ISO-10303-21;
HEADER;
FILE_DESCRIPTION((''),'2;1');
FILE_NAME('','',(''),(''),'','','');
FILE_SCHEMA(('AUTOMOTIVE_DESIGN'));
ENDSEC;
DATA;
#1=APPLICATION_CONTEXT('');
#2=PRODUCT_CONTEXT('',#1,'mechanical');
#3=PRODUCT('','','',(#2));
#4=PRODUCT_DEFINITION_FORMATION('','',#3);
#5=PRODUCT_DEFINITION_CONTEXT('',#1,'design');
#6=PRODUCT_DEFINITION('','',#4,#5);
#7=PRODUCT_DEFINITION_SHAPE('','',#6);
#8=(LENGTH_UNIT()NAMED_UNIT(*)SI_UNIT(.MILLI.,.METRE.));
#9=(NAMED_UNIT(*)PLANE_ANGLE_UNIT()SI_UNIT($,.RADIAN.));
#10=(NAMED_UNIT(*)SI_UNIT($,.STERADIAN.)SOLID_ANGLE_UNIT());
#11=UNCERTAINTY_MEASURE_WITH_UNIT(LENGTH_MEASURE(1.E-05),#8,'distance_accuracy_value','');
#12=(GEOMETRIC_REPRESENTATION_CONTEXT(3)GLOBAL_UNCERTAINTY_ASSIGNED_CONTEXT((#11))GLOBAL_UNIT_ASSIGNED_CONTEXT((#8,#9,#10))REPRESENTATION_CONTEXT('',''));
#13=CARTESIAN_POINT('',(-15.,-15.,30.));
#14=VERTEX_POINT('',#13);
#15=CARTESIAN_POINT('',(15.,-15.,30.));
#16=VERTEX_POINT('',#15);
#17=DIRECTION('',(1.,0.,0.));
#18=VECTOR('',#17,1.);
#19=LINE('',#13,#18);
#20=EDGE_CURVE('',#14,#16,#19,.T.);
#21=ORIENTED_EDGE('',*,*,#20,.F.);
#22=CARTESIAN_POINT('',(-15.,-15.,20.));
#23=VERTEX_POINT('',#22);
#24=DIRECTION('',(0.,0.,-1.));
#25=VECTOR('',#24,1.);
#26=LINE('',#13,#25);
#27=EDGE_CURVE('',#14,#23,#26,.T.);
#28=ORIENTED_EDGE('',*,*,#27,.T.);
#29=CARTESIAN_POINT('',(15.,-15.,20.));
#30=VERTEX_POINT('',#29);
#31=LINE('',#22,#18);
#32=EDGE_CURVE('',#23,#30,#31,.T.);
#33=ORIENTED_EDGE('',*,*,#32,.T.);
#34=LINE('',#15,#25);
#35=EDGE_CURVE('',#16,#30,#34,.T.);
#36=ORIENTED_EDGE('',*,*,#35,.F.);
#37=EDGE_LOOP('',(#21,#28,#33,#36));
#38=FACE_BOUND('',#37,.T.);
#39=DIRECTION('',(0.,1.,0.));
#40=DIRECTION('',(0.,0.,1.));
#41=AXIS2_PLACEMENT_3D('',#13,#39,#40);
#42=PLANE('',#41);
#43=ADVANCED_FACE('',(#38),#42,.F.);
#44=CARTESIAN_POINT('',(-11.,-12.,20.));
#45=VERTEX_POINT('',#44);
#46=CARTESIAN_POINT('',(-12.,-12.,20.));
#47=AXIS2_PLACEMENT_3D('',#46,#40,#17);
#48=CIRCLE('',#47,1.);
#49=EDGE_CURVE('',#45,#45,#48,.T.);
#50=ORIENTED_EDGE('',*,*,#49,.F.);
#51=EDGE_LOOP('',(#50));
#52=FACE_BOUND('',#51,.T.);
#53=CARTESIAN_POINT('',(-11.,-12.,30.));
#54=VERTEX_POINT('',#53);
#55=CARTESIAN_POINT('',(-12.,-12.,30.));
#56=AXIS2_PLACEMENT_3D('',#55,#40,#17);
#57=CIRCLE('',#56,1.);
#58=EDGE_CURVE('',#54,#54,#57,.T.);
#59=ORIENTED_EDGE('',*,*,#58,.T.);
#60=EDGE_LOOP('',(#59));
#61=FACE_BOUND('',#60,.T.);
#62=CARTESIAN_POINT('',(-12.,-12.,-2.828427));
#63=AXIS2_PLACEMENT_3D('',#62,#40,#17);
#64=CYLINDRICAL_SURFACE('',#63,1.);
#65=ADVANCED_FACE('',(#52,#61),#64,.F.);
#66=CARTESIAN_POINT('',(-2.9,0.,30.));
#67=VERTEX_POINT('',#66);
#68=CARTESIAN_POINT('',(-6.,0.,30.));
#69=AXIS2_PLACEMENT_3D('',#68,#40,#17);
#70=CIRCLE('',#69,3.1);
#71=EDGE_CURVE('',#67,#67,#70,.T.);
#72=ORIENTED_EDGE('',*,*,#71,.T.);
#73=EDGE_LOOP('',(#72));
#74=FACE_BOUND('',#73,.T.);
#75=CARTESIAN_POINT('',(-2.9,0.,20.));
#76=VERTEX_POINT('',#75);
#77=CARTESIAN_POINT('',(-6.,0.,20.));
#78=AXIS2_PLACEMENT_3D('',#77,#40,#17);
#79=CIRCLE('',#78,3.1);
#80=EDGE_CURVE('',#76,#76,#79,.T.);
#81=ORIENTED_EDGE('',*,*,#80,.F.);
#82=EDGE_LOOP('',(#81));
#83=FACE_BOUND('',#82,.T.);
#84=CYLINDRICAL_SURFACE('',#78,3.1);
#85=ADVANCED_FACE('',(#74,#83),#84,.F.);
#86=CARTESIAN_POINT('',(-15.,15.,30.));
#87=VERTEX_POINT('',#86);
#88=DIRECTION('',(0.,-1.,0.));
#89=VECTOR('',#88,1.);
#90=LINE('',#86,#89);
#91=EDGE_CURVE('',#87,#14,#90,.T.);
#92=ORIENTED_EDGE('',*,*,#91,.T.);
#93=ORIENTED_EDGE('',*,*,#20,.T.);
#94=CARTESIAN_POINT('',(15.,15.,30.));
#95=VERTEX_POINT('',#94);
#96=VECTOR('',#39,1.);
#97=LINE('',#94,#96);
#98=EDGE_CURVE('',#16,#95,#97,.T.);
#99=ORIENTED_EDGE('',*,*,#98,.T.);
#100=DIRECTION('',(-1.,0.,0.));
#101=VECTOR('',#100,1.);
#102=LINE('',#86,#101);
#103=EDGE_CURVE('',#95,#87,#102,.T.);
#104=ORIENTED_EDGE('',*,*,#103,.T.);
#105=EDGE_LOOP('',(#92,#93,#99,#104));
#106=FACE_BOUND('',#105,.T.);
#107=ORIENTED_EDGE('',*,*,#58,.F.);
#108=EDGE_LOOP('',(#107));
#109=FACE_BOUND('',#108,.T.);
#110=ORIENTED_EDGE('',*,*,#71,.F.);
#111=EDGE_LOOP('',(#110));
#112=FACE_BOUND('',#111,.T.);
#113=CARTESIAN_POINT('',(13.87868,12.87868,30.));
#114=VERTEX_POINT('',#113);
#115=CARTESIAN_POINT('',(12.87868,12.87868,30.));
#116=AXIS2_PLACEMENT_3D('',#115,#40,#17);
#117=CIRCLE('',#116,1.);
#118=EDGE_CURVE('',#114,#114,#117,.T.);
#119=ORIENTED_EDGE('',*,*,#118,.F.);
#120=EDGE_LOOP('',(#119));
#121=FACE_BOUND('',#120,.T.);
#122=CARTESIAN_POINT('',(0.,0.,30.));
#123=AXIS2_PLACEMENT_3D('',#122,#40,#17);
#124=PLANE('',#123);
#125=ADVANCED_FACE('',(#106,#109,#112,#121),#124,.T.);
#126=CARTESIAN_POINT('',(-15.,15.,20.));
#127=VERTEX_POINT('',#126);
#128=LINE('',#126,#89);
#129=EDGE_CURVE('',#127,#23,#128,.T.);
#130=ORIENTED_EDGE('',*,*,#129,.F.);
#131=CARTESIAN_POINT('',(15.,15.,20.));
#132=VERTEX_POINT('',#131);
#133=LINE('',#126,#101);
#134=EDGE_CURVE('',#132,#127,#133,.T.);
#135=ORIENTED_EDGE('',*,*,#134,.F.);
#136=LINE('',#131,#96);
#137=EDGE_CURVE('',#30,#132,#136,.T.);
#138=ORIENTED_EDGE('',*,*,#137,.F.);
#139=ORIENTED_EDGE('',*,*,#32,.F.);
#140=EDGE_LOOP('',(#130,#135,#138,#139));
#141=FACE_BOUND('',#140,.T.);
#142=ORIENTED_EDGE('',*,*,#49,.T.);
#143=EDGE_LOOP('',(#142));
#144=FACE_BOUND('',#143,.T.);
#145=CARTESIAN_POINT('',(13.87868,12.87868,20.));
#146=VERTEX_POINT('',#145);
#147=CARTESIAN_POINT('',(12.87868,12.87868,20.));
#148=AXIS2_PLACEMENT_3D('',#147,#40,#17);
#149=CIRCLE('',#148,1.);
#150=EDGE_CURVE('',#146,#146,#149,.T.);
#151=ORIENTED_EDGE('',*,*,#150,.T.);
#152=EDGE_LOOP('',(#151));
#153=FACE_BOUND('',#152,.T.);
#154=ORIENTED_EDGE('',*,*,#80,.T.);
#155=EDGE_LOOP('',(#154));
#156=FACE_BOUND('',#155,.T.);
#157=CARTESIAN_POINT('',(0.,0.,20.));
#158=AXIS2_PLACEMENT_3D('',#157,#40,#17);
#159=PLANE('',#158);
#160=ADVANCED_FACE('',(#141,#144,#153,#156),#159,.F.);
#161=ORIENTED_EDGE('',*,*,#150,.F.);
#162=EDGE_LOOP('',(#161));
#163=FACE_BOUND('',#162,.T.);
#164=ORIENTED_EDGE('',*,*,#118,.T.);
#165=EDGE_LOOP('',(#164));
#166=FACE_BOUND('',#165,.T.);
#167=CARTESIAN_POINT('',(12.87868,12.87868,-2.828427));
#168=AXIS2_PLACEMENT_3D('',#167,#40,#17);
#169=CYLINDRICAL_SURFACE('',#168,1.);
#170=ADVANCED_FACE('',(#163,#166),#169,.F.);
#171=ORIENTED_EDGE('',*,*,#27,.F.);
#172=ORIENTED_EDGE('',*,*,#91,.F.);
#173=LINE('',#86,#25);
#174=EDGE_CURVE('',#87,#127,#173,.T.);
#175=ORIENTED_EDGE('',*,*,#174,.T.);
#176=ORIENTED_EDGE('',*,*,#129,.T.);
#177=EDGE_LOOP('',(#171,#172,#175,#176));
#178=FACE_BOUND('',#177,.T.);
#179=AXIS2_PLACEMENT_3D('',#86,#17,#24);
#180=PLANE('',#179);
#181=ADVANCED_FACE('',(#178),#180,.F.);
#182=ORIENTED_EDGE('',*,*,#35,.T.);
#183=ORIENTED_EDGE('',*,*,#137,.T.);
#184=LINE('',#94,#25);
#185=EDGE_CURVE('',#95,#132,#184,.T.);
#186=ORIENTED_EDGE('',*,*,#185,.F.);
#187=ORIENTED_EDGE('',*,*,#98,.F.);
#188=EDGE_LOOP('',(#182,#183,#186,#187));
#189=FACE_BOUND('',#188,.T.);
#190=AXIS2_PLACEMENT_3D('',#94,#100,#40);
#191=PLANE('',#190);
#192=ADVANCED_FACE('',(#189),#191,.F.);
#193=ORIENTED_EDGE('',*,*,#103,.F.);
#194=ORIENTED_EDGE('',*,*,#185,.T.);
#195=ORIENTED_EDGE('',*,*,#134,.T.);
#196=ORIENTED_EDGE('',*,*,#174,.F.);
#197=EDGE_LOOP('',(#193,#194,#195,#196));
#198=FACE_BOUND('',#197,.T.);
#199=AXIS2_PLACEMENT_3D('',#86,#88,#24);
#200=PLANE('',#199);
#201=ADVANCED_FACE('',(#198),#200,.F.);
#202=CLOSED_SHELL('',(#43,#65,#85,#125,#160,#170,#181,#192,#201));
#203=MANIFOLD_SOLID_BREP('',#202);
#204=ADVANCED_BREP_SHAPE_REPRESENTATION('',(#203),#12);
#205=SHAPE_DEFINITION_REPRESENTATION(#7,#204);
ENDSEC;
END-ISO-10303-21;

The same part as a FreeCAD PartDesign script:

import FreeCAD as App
import Part
import Sketcher

V = App.Vector
Q = App.Units.Quantity

doc = App.newDocument("Part")
params = doc.addObject("Spreadsheet::Sheet", "Params")
for row, (alias, value) in enumerate([
    ("sketch1_width", "30 mm"),
    ("pad1_length", "10 mm"),
    ("sketch2_diameter", "6.2 mm"),
    ("pocket1_length", "10 mm"),
    ("sketch3_width", "30 mm"),
    ("sketch3_width2", "20 mm"),
    ("pad2_length", "10 mm"),
    ("sketch4_width", "5 mm"),
    ("pad3_length", "10 mm"),
    ("sketch5_width", "5 mm"),
    ("pad4_length", "10 mm"),
    ("sketch6_width", "30 mm"),
    ("pad5_length", "10 mm"),
    ("sketch7_diameter", "6.2 mm"),
    ("pocket2_length", "10 mm"),
    ("sketch8_diameter", "2 mm"),
    ("pad6_length", "30 mm"),
], start=1):
    params.set(f"A{row}", alias)
    params.set(f"B{row}", "=" + value)
    params.setAlias(f"B{row}", alias)

body = doc.addObject("PartDesign::Body", "Body")

sketch1 = body.newObject("Sketcher::SketchObject", "Sketch")
sketch1.AttachmentSupport = (doc.getObject("XY_Plane"), [""])
sketch1.MapMode = "FlatFace"
sketch1.addGeometry([
    Part.LineSegment(V(-15, 15, 0), V(-15, -15, 0)),
    Part.LineSegment(V(-15, -15, 0), V(15, -15, 0)),
    Part.LineSegment(V(15, -15, 0), V(15, 15, 0)),
    Part.LineSegment(V(15, 15, 0), V(-15, 15, 0)),
], False)
sketch1.addConstraint([
    Sketcher.Constraint("Coincident", 0, 2, 1, 1),
    Sketcher.Constraint("Coincident", 1, 2, 2, 1),
    Sketcher.Constraint("Coincident", 2, 2, 3, 1),
    Sketcher.Constraint("Coincident", 3, 2, 0, 1),
    Sketcher.Constraint("Vertical", 0),
    Sketcher.Constraint("Horizontal", 1),
    Sketcher.Constraint("Vertical", 2),
    Sketcher.Constraint("Horizontal", 3),
    Sketcher.Constraint("Symmetric", 0, 2, 2, 2, -1, 1),
    Sketcher.Constraint("Equal", 3, 0),
    Sketcher.Constraint("DistanceX", 1, 1, 1, 2, Q("30 mm")),
])
sketch1.setExpression("Constraints[10]", "Params.sketch1_width")
pad1 = body.newObject("PartDesign::Pad", "Pad")
pad1.Profile = sketch1
pad1.setExpression("Length", "Params.pad1_length")

sketch2 = body.newObject("Sketcher::SketchObject", "Sketch001")
sketch2.AttachmentSupport = (doc.getObject("XY_Plane"), [""])
sketch2.MapMode = "FlatFace"
sketch2.addGeometry(Part.Circle(V(6, -0.4, 0), V(0, 0, 1), 3.1), False)
sketch2.addConstraint([
    Sketcher.Constraint("Diameter", 0, Q("6.2 mm")),
    Sketcher.Constraint("DistanceX", -1, 1, 0, 3, Q("6 mm")),
    Sketcher.Constraint("DistanceY", 0, 3, -1, 1, Q("0.372899 mm")),
])
sketch2.setExpression("Constraints[0]", "Params.sketch2_diameter")
pocket1 = body.newObject("PartDesign::Pocket", "Pocket")
pocket1.Profile = sketch2
pocket1.setExpression("Length", "Params.pocket1_length")
pocket1.Reversed = True
body2 = doc.addObject("PartDesign::Body", "Body001")

sketch3 = body2.newObject("Sketcher::SketchObject", "Sketch002")
sketch3.AttachmentSupport = (doc.getObject("XY_Plane001"), [""])
sketch3.MapMode = "FlatFace"
sketch3.AttachmentOffset = App.Placement(V(0, 0, 10), App.Rotation())
sketch3.addGeometry([
    Part.LineSegment(V(-15, 15, 0), V(-15, -15, 0)),
    Part.LineSegment(V(-15, -15, 0), V(15, -15, 0)),
    Part.LineSegment(V(15, -15, 0), V(15, 15, 0)),
    Part.LineSegment(V(15, 15, 0), V(-15, 15, 0)),
    Part.LineSegment(V(10, -10, 0), V(-10, -10, 0)),
    Part.LineSegment(V(-10, -10, 0), V(-10, 10, 0)),
    Part.LineSegment(V(-10, 10, 0), V(10, 10, 0)),
    Part.LineSegment(V(10, 10, 0), V(10, -10, 0)),
], False)
sketch3.addConstraint([
    Sketcher.Constraint("Coincident", 0, 2, 1, 1),
    Sketcher.Constraint("Coincident", 1, 2, 2, 1),
    Sketcher.Constraint("Coincident", 2, 2, 3, 1),
    Sketcher.Constraint("Coincident", 3, 2, 0, 1),
    Sketcher.Constraint("Coincident", 4, 2, 5, 1),
    Sketcher.Constraint("Coincident", 5, 2, 6, 1),
    Sketcher.Constraint("Coincident", 6, 2, 7, 1),
    Sketcher.Constraint("Coincident", 7, 2, 4, 1),
    Sketcher.Constraint("Vertical", 0),
    Sketcher.Constraint("Horizontal", 1),
    Sketcher.Constraint("Vertical", 2),
    Sketcher.Constraint("Horizontal", 3),
    Sketcher.Constraint("Horizontal", 4),
    Sketcher.Constraint("Vertical", 5),
    Sketcher.Constraint("Horizontal", 6),
    Sketcher.Constraint("Vertical", 7),
    Sketcher.Constraint("Symmetric", 0, 2, 2, 2, -1, 1),
    Sketcher.Constraint("Symmetric", 4, 2, 6, 2, -1, 1),
    Sketcher.Constraint("Equal", 3, 0),
    Sketcher.Constraint("Equal", 6, 5),
    Sketcher.Constraint("DistanceX", 1, 1, 1, 2, Q("30 mm")),
    Sketcher.Constraint("DistanceX", 4, 2, 4, 1, Q("20 mm")),
])
sketch3.setExpression("Constraints[20]", "Params.sketch3_width")
sketch3.setExpression("Constraints[21]", "Params.sketch3_width2")
pad2 = body2.newObject("PartDesign::Pad", "Pad001")
pad2.Profile = sketch3
pad2.setExpression("Length", "Params.pad2_length")
body3 = doc.addObject("PartDesign::Body", "Body002")

sketch4 = body3.newObject("Sketcher::SketchObject", "Sketch003")
sketch4.AttachmentSupport = (doc.getObject("XY_Plane002"), [""])
sketch4.MapMode = "FlatFace"
sketch4.AttachmentOffset = App.Placement(V(0, 0, 10), App.Rotation())
sketch4.addGeometry([
    Part.LineSegment(V(-2.5, 7.2, 0), V(-2.5, 3.5, 0)),
    Part.LineSegment(V(-2.5, 3.5, 0), V(2.5, 3.5, 0)),
    Part.LineSegment(V(2.5, 3.5, 0), V(2.5, 7.2, 0)),
    Part.LineSegment(V(2.5, 7.2, 0), V(-2.5, 7.2, 0)),
], False)
sketch4.addConstraint([
    Sketcher.Constraint("Coincident", 0, 2, 1, 1),
    Sketcher.Constraint("Coincident", 1, 2, 2, 1),
    Sketcher.Constraint("Coincident", 2, 2, 3, 1),
    Sketcher.Constraint("Coincident", 3, 2, 0, 1),
    Sketcher.Constraint("Vertical", 0),
    Sketcher.Constraint("Horizontal", 1),
    Sketcher.Constraint("Vertical", 2),
    Sketcher.Constraint("Horizontal", 3),
    Sketcher.Constraint("DistanceX", 1, 1, 1, 2, Q("5 mm")),
    Sketcher.Constraint("DistanceX", 0, 2, -1, 1, Q("2.5 mm")),
    Sketcher.Constraint("DistanceY", -1, 1, 0, 2, Q("3.5 mm")),
    Sketcher.Constraint("DistanceY", 0, 2, 0, 1, Q("3.748829 mm")),
])
sketch4.setExpression("Constraints[8]", "Params.sketch4_width")
pad3 = body3.newObject("PartDesign::Pad", "Pad002")
pad3.Profile = sketch4
pad3.setExpression("Length", "Params.pad3_length")
body4 = doc.addObject("PartDesign::Body", "Body003")

sketch5 = body4.newObject("Sketcher::SketchObject", "Sketch004")
sketch5.AttachmentSupport = (doc.getObject("XY_Plane003"), [""])
sketch5.MapMode = "FlatFace"
sketch5.AttachmentOffset = App.Placement(V(0, 0, 10), App.Rotation())
sketch5.addGeometry([
    Part.LineSegment(V(-2.5, -3.5, 0), V(-2.5, -7.2, 0)),
    Part.LineSegment(V(-2.5, -7.2, 0), V(2.5, -7.2, 0)),
    Part.LineSegment(V(2.5, -7.2, 0), V(2.5, -3.5, 0)),
    Part.LineSegment(V(2.5, -3.5, 0), V(-2.5, -3.5, 0)),
], False)
sketch5.addConstraint([
    Sketcher.Constraint("Coincident", 0, 2, 1, 1),
    Sketcher.Constraint("Coincident", 1, 2, 2, 1),
    Sketcher.Constraint("Coincident", 2, 2, 3, 1),
    Sketcher.Constraint("Coincident", 3, 2, 0, 1),
    Sketcher.Constraint("Vertical", 0),
    Sketcher.Constraint("Horizontal", 1),
    Sketcher.Constraint("Vertical", 2),
    Sketcher.Constraint("Horizontal", 3),
    Sketcher.Constraint("DistanceX", 1, 1, 1, 2, Q("5 mm")),
    Sketcher.Constraint("DistanceX", 0, 2, -1, 1, Q("2.5 mm")),
    Sketcher.Constraint("DistanceY", 2, 2, -1, 1, Q("3.5 mm")),
    Sketcher.Constraint("DistanceY", 0, 2, 0, 1, Q("3.748829 mm")),
])
sketch5.setExpression("Constraints[8]", "Params.sketch5_width")
pad4 = body4.newObject("PartDesign::Pad", "Pad003")
pad4.Profile = sketch5
pad4.setExpression("Length", "Params.pad4_length")
body5 = doc.addObject("PartDesign::Body", "Body004")

sketch6 = body5.newObject("Sketcher::SketchObject", "Sketch005")
sketch6.AttachmentSupport = (doc.getObject("XY_Plane004"), [""])
sketch6.MapMode = "FlatFace"
sketch6.AttachmentOffset = App.Placement(V(0, 0, 20), App.Rotation())
sketch6.addGeometry([
    Part.LineSegment(V(-15, 15, 0), V(-15, -15, 0)),
    Part.LineSegment(V(-15, -15, 0), V(15, -15, 0)),
    Part.LineSegment(V(15, -15, 0), V(15, 15, 0)),
    Part.LineSegment(V(15, 15, 0), V(-15, 15, 0)),
], False)
sketch6.addConstraint([
    Sketcher.Constraint("Coincident", 0, 2, 1, 1),
    Sketcher.Constraint("Coincident", 1, 2, 2, 1),
    Sketcher.Constraint("Coincident", 2, 2, 3, 1),
    Sketcher.Constraint("Coincident", 3, 2, 0, 1),
    Sketcher.Constraint("Vertical", 0),
    Sketcher.Constraint("Horizontal", 1),
    Sketcher.Constraint("Vertical", 2),
    Sketcher.Constraint("Horizontal", 3),
    Sketcher.Constraint("Symmetric", 0, 2, 2, 2, -1, 1),
    Sketcher.Constraint("Equal", 3, 0),
    Sketcher.Constraint("DistanceX", 1, 1, 1, 2, Q("30 mm")),
])
sketch6.setExpression("Constraints[10]", "Params.sketch6_width")
pad5 = body5.newObject("PartDesign::Pad", "Pad004")
pad5.Profile = sketch6
pad5.setExpression("Length", "Params.pad5_length")

sketch7 = body5.newObject("Sketcher::SketchObject", "Sketch006")
sketch7.AttachmentSupport = (doc.getObject("XY_Plane004"), [""])
sketch7.MapMode = "FlatFace"
sketch7.AttachmentOffset = App.Placement(V(0, 0, 30), App.Rotation())
sketch7.addGeometry(Part.Circle(V(-6, 0, 0), V(0, 0, 1), 3.1), False)
sketch7.addConstraint([
    Sketcher.Constraint("PointOnObject", 0, 3, -1),
    Sketcher.Constraint("Diameter", 0, Q("6.2 mm")),
    Sketcher.Constraint("DistanceX", 0, 3, -1, 1, Q("6 mm")),
])
sketch7.setExpression("Constraints[1]", "Params.sketch7_diameter")
pocket2 = body5.newObject("PartDesign::Pocket", "Pocket001")
pocket2.Profile = sketch7
pocket2.setExpression("Length", "Params.pocket2_length")
body6 = doc.addObject("PartDesign::Body", "Body005")
body6.AllowCompound = True

sketch8 = body6.newObject("Sketcher::SketchObject", "Sketch007")
sketch8.AttachmentSupport = (doc.getObject("XY_Plane005"), [""])
sketch8.MapMode = "FlatFace"
sketch8.addGeometry([
    Part.Circle(V(-12, -12, 0), V(0, 0, 1), 1),
    Part.Circle(V(12.9, 12.9, 0), V(0, 0, 1), 1),
], False)
sketch8.addConstraint([
    Sketcher.Constraint("Equal", 0, 1),
    Sketcher.Constraint("Diameter", 0, Q("2 mm")),
    Sketcher.Constraint("DistanceX", 0, 3, -1, 1, Q("12 mm")),
    Sketcher.Constraint("DistanceY", 0, 3, -1, 1, Q("12 mm")),
    Sketcher.Constraint("DistanceX", -1, 1, 1, 3, Q("12.87868 mm")),
    Sketcher.Constraint("DistanceY", -1, 1, 1, 3, Q("12.87868 mm")),
])
sketch8.setExpression("Constraints[1]", "Params.sketch8_diameter")
pad6 = body6.newObject("PartDesign::Pad", "Pad005")
pad6.Profile = sketch8
pad6.setExpression("Length", "Params.pad6_length")
doc.recompute()

body7 = doc.addObject("PartDesign::Body", "Body006")
body7.BaseFeature = body6
boolean = body.newObject("PartDesign::Boolean", "Boolean")
boolean.Type = "Cut"
boolean.addObjects([body7])
doc.recompute()

body8 = doc.addObject("PartDesign::Body", "Body007")
body8.BaseFeature = body6
boolean2 = body2.newObject("PartDesign::Boolean", "Boolean001")
boolean2.Type = "Cut"
boolean2.addObjects([body8])
doc.recompute()

boolean3 = body5.newObject("PartDesign::Boolean", "Boolean002")
boolean3.Type = "Cut"
boolean3.addObjects([body6])
body.Visibility = False
body2.Visibility = False
body3.Visibility = False
body4.Visibility = False

doc.recompute()
